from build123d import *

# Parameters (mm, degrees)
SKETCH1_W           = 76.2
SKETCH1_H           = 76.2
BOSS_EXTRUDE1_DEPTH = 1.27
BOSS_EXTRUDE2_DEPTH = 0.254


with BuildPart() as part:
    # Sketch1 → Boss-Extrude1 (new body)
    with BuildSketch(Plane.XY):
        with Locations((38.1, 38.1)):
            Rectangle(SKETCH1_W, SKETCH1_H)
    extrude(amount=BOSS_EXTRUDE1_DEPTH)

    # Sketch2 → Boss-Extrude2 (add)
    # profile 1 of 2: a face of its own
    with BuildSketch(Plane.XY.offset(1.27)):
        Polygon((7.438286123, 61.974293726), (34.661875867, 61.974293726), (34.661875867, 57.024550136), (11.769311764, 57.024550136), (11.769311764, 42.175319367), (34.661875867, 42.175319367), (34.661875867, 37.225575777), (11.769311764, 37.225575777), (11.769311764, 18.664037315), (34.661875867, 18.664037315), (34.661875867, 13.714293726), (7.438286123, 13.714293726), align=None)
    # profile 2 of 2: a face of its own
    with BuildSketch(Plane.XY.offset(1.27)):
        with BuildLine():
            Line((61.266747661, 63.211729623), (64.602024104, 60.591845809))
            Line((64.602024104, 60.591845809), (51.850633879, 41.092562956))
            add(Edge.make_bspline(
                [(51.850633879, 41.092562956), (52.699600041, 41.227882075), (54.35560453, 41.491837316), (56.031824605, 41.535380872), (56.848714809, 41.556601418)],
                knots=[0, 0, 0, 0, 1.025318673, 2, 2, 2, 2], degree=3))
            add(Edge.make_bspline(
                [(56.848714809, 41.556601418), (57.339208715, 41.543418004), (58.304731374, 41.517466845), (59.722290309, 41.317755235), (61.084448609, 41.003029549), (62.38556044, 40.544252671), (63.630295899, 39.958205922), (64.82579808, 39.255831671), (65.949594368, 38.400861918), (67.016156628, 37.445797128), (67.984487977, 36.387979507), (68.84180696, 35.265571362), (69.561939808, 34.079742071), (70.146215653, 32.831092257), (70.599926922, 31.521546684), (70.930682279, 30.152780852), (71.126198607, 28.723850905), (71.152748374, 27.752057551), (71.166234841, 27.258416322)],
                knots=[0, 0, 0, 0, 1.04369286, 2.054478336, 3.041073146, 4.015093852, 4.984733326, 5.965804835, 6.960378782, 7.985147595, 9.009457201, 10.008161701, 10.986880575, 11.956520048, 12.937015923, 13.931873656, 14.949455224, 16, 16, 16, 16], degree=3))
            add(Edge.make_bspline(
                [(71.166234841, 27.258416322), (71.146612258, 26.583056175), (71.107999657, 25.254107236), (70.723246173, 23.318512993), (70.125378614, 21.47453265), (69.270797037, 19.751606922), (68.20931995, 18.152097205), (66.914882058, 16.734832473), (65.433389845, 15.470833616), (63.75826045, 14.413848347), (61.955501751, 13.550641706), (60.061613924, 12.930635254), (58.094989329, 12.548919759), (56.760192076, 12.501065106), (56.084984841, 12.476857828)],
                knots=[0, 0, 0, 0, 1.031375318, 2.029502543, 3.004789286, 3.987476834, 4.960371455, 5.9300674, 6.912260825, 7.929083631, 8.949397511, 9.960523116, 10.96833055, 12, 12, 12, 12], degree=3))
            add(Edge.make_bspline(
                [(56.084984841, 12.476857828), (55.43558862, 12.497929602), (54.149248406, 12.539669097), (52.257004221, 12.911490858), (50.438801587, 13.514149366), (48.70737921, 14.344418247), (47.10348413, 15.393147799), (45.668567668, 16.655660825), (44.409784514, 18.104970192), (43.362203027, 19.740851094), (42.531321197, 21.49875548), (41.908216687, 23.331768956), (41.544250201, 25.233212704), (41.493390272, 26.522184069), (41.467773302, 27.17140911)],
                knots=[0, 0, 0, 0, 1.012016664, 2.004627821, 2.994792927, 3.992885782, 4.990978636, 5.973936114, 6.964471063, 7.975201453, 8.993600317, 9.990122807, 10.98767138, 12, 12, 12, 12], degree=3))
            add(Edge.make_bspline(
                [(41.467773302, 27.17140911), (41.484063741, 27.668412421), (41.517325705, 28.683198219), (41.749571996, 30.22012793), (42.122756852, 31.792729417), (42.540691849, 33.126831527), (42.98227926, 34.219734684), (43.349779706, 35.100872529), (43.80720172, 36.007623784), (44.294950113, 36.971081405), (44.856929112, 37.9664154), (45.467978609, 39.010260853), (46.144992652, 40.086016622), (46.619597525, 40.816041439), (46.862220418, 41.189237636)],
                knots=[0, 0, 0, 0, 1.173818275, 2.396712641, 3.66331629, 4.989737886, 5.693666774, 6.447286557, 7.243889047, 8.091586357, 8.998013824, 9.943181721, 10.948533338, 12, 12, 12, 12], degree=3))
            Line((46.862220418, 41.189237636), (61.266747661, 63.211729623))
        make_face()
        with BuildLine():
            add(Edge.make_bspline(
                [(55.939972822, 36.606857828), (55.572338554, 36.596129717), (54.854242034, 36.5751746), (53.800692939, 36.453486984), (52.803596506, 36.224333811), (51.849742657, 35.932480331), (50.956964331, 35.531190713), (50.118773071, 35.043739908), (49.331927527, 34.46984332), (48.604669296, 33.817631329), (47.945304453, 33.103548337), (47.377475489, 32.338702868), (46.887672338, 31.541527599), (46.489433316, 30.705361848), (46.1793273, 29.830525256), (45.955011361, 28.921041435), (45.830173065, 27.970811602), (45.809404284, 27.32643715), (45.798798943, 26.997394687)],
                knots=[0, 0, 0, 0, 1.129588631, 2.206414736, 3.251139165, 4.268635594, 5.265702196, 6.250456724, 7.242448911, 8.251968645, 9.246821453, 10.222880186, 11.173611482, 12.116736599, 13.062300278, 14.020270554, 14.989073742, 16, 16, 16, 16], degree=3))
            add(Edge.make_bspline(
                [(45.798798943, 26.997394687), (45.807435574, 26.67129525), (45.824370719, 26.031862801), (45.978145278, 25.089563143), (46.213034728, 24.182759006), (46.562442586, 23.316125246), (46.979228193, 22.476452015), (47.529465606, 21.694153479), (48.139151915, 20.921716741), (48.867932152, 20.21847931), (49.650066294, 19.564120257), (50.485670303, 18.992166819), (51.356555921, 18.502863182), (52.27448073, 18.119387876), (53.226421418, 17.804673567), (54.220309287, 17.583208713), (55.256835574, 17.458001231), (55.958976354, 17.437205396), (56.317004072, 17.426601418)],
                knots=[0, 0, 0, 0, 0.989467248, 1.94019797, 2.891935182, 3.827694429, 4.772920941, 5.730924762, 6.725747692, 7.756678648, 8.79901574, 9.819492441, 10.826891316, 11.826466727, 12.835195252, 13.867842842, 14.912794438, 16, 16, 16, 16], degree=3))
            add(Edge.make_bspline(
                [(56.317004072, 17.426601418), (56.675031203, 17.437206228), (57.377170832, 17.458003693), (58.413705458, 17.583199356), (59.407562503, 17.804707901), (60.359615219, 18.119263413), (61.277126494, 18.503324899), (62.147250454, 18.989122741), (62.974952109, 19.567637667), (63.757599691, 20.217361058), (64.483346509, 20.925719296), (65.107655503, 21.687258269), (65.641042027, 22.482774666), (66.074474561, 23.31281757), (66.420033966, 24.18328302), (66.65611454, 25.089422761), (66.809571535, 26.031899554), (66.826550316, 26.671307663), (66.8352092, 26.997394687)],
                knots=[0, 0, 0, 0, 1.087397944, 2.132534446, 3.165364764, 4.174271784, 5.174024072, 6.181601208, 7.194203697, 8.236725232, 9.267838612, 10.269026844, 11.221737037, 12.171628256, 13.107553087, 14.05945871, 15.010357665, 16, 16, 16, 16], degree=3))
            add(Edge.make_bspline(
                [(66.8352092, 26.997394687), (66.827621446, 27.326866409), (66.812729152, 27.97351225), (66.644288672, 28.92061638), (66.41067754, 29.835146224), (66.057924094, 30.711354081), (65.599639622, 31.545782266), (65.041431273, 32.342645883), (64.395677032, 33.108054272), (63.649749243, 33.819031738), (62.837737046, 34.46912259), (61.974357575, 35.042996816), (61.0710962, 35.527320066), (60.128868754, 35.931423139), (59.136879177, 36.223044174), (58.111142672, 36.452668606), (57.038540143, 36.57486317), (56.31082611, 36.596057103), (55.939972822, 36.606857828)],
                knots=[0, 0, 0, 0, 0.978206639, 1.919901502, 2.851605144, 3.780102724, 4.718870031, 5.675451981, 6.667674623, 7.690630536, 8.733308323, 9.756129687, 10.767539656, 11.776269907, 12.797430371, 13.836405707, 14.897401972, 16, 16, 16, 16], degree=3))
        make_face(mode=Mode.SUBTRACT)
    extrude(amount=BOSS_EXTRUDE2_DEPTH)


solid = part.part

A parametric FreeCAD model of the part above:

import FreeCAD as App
import Part
import Sketcher

V = App.Vector
Q = App.Units.Quantity

doc = App.newDocument("Part")
body = doc.addObject("PartDesign::Body", "Body")

sketch1 = body.newObject("Sketcher::SketchObject", "Sketch")
sketch1.AttachmentSupport = (doc.getObject("XY_Plane"), [""])
sketch1.MapMode = "FlatFace"
sketch1.addGeometry([
    Part.LineSegment(V(0, 76.2, 0), V(0, 0, 0)),
    Part.LineSegment(V(0, 0, 0), V(76.2, 0, 0)),
    Part.LineSegment(V(76.2, 0, 0), V(76.2, 76.2, 0)),
    Part.LineSegment(V(76.2, 76.2, 0), V(0, 76.2, 0)),
], False)
sketch1.addConstraint([
    Sketcher.Constraint("Coincident", 0, 2, 1, 1),
    Sketcher.Constraint("Coincident", 1, 2, 2, 1),
    Sketcher.Constraint("Coincident", 2, 2, 3, 1),
    Sketcher.Constraint("Coincident", 3, 2, 0, 1),
    Sketcher.Constraint("Vertical", 0),
    Sketcher.Constraint("Horizontal", 1),
    Sketcher.Constraint("Vertical", 2),
    Sketcher.Constraint("Horizontal", 3),
    Sketcher.Constraint("Coincident", 0, 2, -1, 1),
    Sketcher.Constraint("Equal", 3, 0),
    Sketcher.Constraint("DistanceX", 1, 1, 1, 2, Q("3 in")),
])
pad1 = body.newObject("PartDesign::Pad", "Pad")
pad1.Profile = sketch1
pad1.Length = Q("0.05 in")

sketch2 = body.newObject("Sketcher::SketchObject", "Sketch001")
sketch2.AttachmentSupport = (doc.getObject("XY_Plane"), [""])
sketch2.MapMode = "FlatFace"
sketch2.AttachmentOffset = App.Placement(V(0, 0, 0.05 * 25.4), App.Rotation())
sketch2.addGeometry([
    Part.LineSegment(V(34.661876, 61.974294, 0), V(7.438286, 61.974294, 0)),
    Part.LineSegment(V(7.438286, 61.974294, 0), V(7.438286, 13.714294, 0)),
    Part.LineSegment(V(7.438286, 13.714294, 0), V(34.661876, 13.714294, 0)),
    Part.LineSegment(V(34.661876, 13.714294, 0), V(34.661876, 18.664037, 0)),
    Part.LineSegment(V(34.661876, 18.664037, 0), V(11.769312, 18.664037, 0)),
    Part.LineSegment(V(11.769312, 18.664037, 0), V(11.769312, 37.225576, 0)),
    Part.LineSegment(V(11.769312, 37.225576, 0), V(34.661876, 37.225576, 0)),
    Part.LineSegment(V(34.661876, 37.225576, 0), V(34.661876, 42.175319, 0)),
    Part.LineSegment(V(34.661876, 42.175319, 0), V(11.769312, 42.175319, 0)),
    Part.LineSegment(V(11.769312, 42.175319, 0), V(11.769312, 57.02455, 0)),
    Part.LineSegment(V(11.769312, 57.02455, 0), V(34.661876, 57.02455, 0)),
    Part.LineSegment(V(34.661876, 57.02455, 0), V(34.661876, 61.974294, 0)),
    Part.LineSegment(V(64.602024, 60.591846, 0), V(61.266748, 63.21173, 0)),
    Part.LineSegment(V(61.266748, 63.21173, 0), V(46.86222, 41.189238, 0)),
    Part.BSplineCurve([V(41.467773, 27.171409, 0), V(41.484064, 27.668412, 0), V(41.517326, 28.683198, 0), V(41.749572, 30.220128, 0), V(42.122757, 31.792729, 0), V(42.540692, 33.126832, 0), V(42.982279, 34.219735, 0), V(43.34978, 35.100873, 0), V(43.807202, 36.007624, 0), V(44.29495, 36.971081, 0), V(44.856929, 37.966415, 0), V(45.467979, 39.010261, 0), V(46.144993, 40.086017, 0), V(46.619598, 40.816041, 0), V(46.86222, 41.189238, 0)], [4, 1, 1, 1, 1, 1, 1, 1, 1, 1, 1, 1, 4], [0, 1.173818275, 2.396712641, 3.66331629, 4.989737886, 5.693666774, 6.447286557, 7.243889047, 8.091586357, 8.998013824, 9.943181721, 10.948533338, 12], False, 3, [1, 1, 1, 1, 1, 1, 1, 1, 1, 1, 1, 1, 1, 1, 1], False),
    Part.BSplineCurve([V(56.084985, 12.476858, 0), V(55.435589, 12.49793, 0), V(54.149248, 12.539669, 0), V(52.257004, 12.911491, 0), V(50.438802, 13.514149, 0), V(48.707379, 14.344418, 0), V(47.103484, 15.393148, 0), V(45.668568, 16.655661, 0), V(44.409785, 18.10497, 0), V(43.362203, 19.740851, 0), V(42.531321, 21.498755, 0), V(41.908217, 23.331769, 0), V(41.54425, 25.233213, 0), V(41.49339, 26.522184, 0), V(41.467773, 27.171409, 0)], [4, 1, 1, 1, 1, 1, 1, 1, 1, 1, 1, 1, 4], [0, 1.012016664, 2.004627821, 2.994792927, 3.992885782, 4.990978636, 5.973936114, 6.964471063, 7.975201453, 8.993600317, 9.990122807, 10.98767138, 12], False, 3, [1, 1, 1, 1, 1, 1, 1, 1, 1, 1, 1, 1, 1, 1, 1], False),
    Part.BSplineCurve([V(71.166235, 27.258416, 0), V(71.146612, 26.583056, 0), V(71.108, 25.254107, 0), V(70.723246, 23.318513, 0), V(70.125379, 21.474533, 0), V(69.270797, 19.751607, 0), V(68.20932, 18.152097, 0), V(66.914882, 16.734832, 0), V(65.43339, 15.470834, 0), V(63.75826, 14.413848, 0), V(61.955502, 13.550642, 0), V(60.061614, 12.930635, 0), V(58.094989, 12.54892, 0), V(56.760192, 12.501065, 0), V(56.084985, 12.476858, 0)], [4, 1, 1, 1, 1, 1, 1, 1, 1, 1, 1, 1, 4], [0, 1.031375318, 2.029502543, 3.004789286, 3.987476834, 4.960371455, 5.9300674, 6.912260825, 7.929083631, 8.949397511, 9.960523116, 10.96833055, 12], False, 3, [1, 1, 1, 1, 1, 1, 1, 1, 1, 1, 1, 1, 1, 1, 1], False),
    Part.BSplineCurve([V(56.848715, 41.556601, 0), V(57.339209, 41.543418, 0), V(58.304731, 41.517467, 0), V(59.72229, 41.317755, 0), V(61.084449, 41.00303, 0), V(62.38556, 40.544253, 0), V(63.630296, 39.958206, 0), V(64.825798, 39.255832, 0), V(65.949594, 38.400862, 0), V(67.016157, 37.445797, 0), V(67.984488, 36.38798, 0), V(68.841807, 35.265571, 0), V(69.56194, 34.079742, 0), V(70.146216, 32.831092, 0), V(70.599927, 31.521547, 0), V(70.930682, 30.152781, 0), V(71.126199, 28.723851, 0), V(71.152748, 27.752058, 0), V(71.166235, 27.258416, 0)], [4, 1, 1, 1, 1, 1, 1, 1, 1, 1, 1, 1, 1, 1, 1, 1, 4], [0, 1.04369286, 2.054478336, 3.041073146, 4.015093852, 4.984733326, 5.965804835, 6.960378782, 7.985147595, 9.009457201, 10.008161701, 10.986880575, 11.956520048, 12.937015923, 13.931873656, 14.949455224, 16], False, 3, [1, 1, 1, 1, 1, 1, 1, 1, 1, 1, 1, 1, 1, 1, 1, 1, 1, 1, 1], False),
    Part.BSplineCurve([V(51.850634, 41.092563, 0), V(52.6996, 41.227882, 0), V(54.355605, 41.491837, 0), V(56.031825, 41.535381, 0), V(56.848715, 41.556601, 0)], [4, 1, 4], [0, 1.025318673, 2], False, 3, [1, 1, 1, 1, 1], False),
    Part.LineSegment(V(51.850634, 41.092563, 0), V(64.602024, 60.591846, 0)),
    Part.BSplineCurve([V(66.835209, 26.997395, 0), V(66.827621, 27.326866, 0), V(66.812729, 27.973512, 0), V(66.644289, 28.920616, 0), V(66.410678, 29.835146, 0), V(66.057924, 30.711354, 0), V(65.59964, 31.545782, 0), V(65.041431, 32.342646, 0), V(64.395677, 33.108054, 0), V(63.649749, 33.819032, 0), V(62.837737, 34.469123, 0), V(61.974358, 35.042997, 0), V(61.071096, 35.52732, 0), V(60.128869, 35.931423, 0), V(59.136879, 36.223044, 0), V(58.111143, 36.452669, 0), V(57.03854, 36.574863, 0), V(56.310826, 36.596057, 0), V(55.939973, 36.606858, 0)], [4, 1, 1, 1, 1, 1, 1, 1, 1, 1, 1, 1, 1, 1, 1, 1, 4], [0, 0.978206639, 1.919901502, 2.851605144, 3.780102724, 4.718870031, 5.675451981, 6.667674623, 7.690630536, 8.733308323, 9.756129687, 10.767539656, 11.776269907, 12.797430371, 13.836405707, 14.897401972, 16], False, 3, [1, 1, 1, 1, 1, 1, 1, 1, 1, 1, 1, 1, 1, 1, 1, 1, 1, 1, 1], False),
    Part.BSplineCurve([V(56.317004, 17.426601, 0), V(56.675031, 17.437206, 0), V(57.377171, 17.458004, 0), V(58.413705, 17.583199, 0), V(59.407563, 17.804708, 0), V(60.359615, 18.119263, 0), V(61.277126, 18.503325, 0), V(62.14725, 18.989123, 0), V(62.974952, 19.567638, 0), V(63.7576, 20.217361, 0), V(64.483347, 20.925719, 0), V(65.107656, 21.687258, 0), V(65.641042, 22.482775, 0), V(66.074475, 23.312818, 0), V(66.420034, 24.183283, 0), V(66.656115, 25.089423, 0), V(66.809572, 26.0319, 0), V(66.82655, 26.671308, 0), V(66.835209, 26.997395, 0)], [4, 1, 1, 1, 1, 1, 1, 1, 1, 1, 1, 1, 1, 1, 1, 1, 4], [0, 1.087397944, 2.132534446, 3.165364764, 4.174271784, 5.174024072, 6.181601208, 7.194203697, 8.236725232, 9.267838612, 10.269026844, 11.221737037, 12.171628256, 13.107553087, 14.05945871, 15.010357665, 16], False, 3, [1, 1, 1, 1, 1, 1, 1, 1, 1, 1, 1, 1, 1, 1, 1, 1, 1, 1, 1], False),
    Part.BSplineCurve([V(45.798799, 26.997395, 0), V(45.807436, 26.671295, 0), V(45.824371, 26.031863, 0), V(45.978145, 25.089563, 0), V(46.213035, 24.182759, 0), V(46.562443, 23.316125, 0), V(46.979228, 22.476452, 0), V(47.529466, 21.694153, 0), V(48.139152, 20.921717, 0), V(48.867932, 20.218479, 0), V(49.650066, 19.56412, 0), V(50.48567, 18.992167, 0), V(51.356556, 18.502863, 0), V(52.274481, 18.119388, 0), V(53.226421, 17.804674, 0), V(54.220309, 17.583209, 0), V(55.256836, 17.458001, 0), V(55.958976, 17.437205, 0), V(56.317004, 17.426601, 0)], [4, 1, 1, 1, 1, 1, 1, 1, 1, 1, 1, 1, 1, 1, 1, 1, 4], [0, 0.989467248, 1.94019797, 2.891935182, 3.827694429, 4.772920941, 5.730924762, 6.725747692, 7.756678648, 8.79901574, 9.819492441, 10.826891316, 11.826466727, 12.835195252, 13.867842842, 14.912794438, 16], False, 3, [1, 1, 1, 1, 1, 1, 1, 1, 1, 1, 1, 1, 1, 1, 1, 1, 1, 1, 1], False),
    Part.BSplineCurve([V(55.939973, 36.606858, 0), V(55.572339, 36.59613, 0), V(54.854242, 36.575175, 0), V(53.800693, 36.453487, 0), V(52.803597, 36.224334, 0), V(51.849743, 35.93248, 0), V(50.956964, 35.531191, 0), V(50.118773, 35.04374, 0), V(49.331928, 34.469843, 0), V(48.604669, 33.817631, 0), V(47.945304, 33.103548, 0), V(47.377475, 32.338703, 0), V(46.887672, 31.541528, 0), V(46.489433, 30.705362, 0), V(46.179327, 29.830525, 0), V(45.955011, 28.921041, 0), V(45.830173, 27.970812, 0), V(45.809404, 27.326437, 0), V(45.798799, 26.997395, 0)], [4, 1, 1, 1, 1, 1, 1, 1, 1, 1, 1, 1, 1, 1, 1, 1, 4], [0, 1.129588631, 2.206414736, 3.251139165, 4.268635594, 5.265702196, 6.250456724, 7.242448911, 8.251968645, 9.246821453, 10.222880186, 11.173611482, 12.116736599, 13.062300278, 14.020270554, 14.989073742, 16], False, 3, [1, 1, 1, 1, 1, 1, 1, 1, 1, 1, 1, 1, 1, 1, 1, 1, 1, 1, 1], False),
], False)
sketch2.addConstraint([
    Sketcher.Constraint("Block", 14),
    Sketcher.Constraint("Block", 15),
    Sketcher.Constraint("Block", 16),
    Sketcher.Constraint("Block", 17),
    Sketcher.Constraint("Block", 18),
    Sketcher.Constraint("Block", 20),
    Sketcher.Constraint("Block", 21),
    Sketcher.Constraint("Block", 22),
    Sketcher.Constraint("Block", 23),
    Sketcher.Constraint("Coincident", 0, 2, 1, 1),
    Sketcher.Constraint("Coincident", 1, 2, 2, 1),
    Sketcher.Constraint("Coincident", 2, 2, 3, 1),
    Sketcher.Constraint("Coincident", 3, 2, 4, 1),
    Sketcher.Constraint("Coincident", 4, 2, 5, 1),
    Sketcher.Constraint("Coincident", 5, 2, 6, 1),
    Sketcher.Constraint("Coincident", 6, 2, 7, 1),
    Sketcher.Constraint("Coincident", 7, 2, 8, 1),
    Sketcher.Constraint("Coincident", 8, 2, 9, 1),
    Sketcher.Constraint("Coincident", 9, 2, 10, 1),
    Sketcher.Constraint("Coincident", 10, 2, 11, 1),
    Sketcher.Constraint("Coincident", 11, 2, 0, 1),
    Sketcher.Constraint("Coincident", 12, 2, 13, 1),
    Sketcher.Constraint("Coincident", 13, 2, 14, 2),
    Sketcher.Constraint("Coincident", 18, 1, 19, 1),
    Sketcher.Constraint("Coincident", 19, 2, 12, 1),
    Sketcher.Constraint("Horizontal", 0),
    Sketcher.Constraint("Vertical", 1),
    Sketcher.Constraint("Horizontal", 2),
    Sketcher.Constraint("Vertical", 3),
    Sketcher.Constraint("Horizontal", 4),
    Sketcher.Constraint("Vertical", 5),
    Sketcher.Constraint("Horizontal", 6),
    Sketcher.Constraint("Vertical", 7),
    Sketcher.Constraint("Horizontal", 8),
    Sketcher.Constraint("Vertical", 9),
    Sketcher.Constraint("Horizontal", 10),
    Sketcher.Constraint("Vertical", 11),
    Sketcher.Constraint("Vertical", 3, 2, 6, 2),
    Sketcher.Constraint("Vertical", 5, 2, 8, 2),
    Sketcher.Constraint("Vertical", 7, 2, 10, 2),
    Sketcher.Constraint("Equal", 3, 7),
    Sketcher.Constraint("Equal", 7, 11),
    Sketcher.Constraint("DistanceY", 1, 2, 1, 1, Q("1.9 in")),
    Sketcher.Constraint("DistanceX", 0, 2, 0, 1, 27.22359),
    Sketcher.Constraint("DistanceY", 5, 1, 5, 2, 18.561538),
    Sketcher.Constraint("DistanceY", 9, 1, 9, 2, 14.849231),
    Sketcher.Constraint("DistanceY", 3, 2, 13, 2, 22.5252),
    Sketcher.Constraint("Distance", 12, 4.24121),
    Sketcher.Constraint("DistanceX", 4, 2, 4, 1, 22.892564),
    Sketcher.Constraint("DistanceX", -1, 1, 4, 2, 11.769312),
    Sketcher.Constraint("DistanceY", -1, 1, 12, 2, 63.21173),
    Sketcher.Constraint("DistanceX", 11, 2, 12, 2, 26.604872),
    Sketcher.Constraint("DistanceY", 13, 2, 19, 2, 19.402608),
])
pad2 = body.newObject("PartDesign::Pad", "Pad001")
pad2.Profile = sketch2
pad2.Length = Q("0.01 in")

doc.recompute()
